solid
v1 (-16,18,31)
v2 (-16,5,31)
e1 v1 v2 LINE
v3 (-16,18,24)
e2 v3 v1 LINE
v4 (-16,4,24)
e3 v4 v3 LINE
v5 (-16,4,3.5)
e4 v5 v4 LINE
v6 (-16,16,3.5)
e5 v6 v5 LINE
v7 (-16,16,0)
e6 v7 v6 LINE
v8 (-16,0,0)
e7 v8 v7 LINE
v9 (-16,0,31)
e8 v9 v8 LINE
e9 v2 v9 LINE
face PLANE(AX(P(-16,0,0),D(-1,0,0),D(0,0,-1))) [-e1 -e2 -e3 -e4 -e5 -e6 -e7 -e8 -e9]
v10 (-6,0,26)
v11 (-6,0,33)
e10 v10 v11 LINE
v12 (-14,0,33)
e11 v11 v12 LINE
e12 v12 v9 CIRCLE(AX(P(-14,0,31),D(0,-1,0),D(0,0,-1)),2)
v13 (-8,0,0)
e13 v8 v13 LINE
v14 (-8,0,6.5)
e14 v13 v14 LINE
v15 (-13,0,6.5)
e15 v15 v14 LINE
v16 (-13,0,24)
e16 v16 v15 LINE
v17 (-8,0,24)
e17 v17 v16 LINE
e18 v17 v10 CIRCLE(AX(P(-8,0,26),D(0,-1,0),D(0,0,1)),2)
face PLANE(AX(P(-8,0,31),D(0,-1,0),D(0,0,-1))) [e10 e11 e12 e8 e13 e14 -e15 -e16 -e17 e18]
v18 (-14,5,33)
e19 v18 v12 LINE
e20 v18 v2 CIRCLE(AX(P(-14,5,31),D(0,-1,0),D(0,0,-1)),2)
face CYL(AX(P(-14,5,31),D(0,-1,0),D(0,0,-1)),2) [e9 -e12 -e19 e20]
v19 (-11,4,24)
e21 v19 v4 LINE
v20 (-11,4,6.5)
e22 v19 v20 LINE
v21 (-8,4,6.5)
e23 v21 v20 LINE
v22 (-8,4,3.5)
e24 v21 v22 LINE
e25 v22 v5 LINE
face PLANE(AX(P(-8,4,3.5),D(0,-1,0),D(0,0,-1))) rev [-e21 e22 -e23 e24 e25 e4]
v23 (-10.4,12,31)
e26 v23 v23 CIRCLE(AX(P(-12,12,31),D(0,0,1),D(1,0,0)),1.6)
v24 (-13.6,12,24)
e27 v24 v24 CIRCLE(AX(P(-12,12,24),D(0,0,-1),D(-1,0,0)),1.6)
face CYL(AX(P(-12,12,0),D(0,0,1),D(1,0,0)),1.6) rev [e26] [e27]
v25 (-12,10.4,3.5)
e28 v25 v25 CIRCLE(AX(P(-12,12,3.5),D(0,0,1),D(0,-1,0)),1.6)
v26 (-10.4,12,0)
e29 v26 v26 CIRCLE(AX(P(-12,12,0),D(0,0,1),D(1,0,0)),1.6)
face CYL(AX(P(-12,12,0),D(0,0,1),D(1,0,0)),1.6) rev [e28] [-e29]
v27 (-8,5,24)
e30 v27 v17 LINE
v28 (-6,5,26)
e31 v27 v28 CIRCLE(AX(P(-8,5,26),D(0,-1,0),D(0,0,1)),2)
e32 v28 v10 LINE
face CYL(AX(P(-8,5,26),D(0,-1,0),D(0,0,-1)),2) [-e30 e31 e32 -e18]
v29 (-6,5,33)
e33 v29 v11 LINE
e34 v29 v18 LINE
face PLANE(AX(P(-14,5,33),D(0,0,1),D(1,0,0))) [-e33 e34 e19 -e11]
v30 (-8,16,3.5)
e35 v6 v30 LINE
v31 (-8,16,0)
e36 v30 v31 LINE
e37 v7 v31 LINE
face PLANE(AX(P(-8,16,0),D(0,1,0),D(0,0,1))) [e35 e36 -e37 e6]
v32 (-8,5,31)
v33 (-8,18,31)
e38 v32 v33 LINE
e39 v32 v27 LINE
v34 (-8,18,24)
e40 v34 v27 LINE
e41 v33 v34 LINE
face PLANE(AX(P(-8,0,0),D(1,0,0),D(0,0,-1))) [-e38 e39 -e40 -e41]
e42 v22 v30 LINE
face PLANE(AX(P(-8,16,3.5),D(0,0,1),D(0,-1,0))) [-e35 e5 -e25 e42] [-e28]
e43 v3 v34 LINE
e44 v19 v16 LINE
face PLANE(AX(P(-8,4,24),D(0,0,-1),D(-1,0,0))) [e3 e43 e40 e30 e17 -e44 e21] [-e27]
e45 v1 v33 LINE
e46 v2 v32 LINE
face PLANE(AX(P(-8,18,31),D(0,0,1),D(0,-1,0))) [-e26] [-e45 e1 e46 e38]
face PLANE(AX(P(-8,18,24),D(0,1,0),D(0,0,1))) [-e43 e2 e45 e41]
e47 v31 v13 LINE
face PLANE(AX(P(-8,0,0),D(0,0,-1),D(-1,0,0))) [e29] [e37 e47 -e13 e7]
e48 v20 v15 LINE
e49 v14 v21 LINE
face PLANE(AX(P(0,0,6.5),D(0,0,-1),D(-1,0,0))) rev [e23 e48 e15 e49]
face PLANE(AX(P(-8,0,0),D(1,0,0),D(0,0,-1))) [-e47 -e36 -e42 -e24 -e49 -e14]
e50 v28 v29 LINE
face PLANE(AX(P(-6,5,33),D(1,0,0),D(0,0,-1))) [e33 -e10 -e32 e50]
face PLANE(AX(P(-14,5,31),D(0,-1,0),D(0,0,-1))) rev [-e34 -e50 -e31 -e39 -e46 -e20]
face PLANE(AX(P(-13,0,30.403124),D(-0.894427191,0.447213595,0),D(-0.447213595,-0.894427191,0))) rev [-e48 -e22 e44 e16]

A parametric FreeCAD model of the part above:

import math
import FreeCAD as App
import Part
import Sketcher
from FreeCAD import Vector
Q = App.Units.Quantity


def add_polygon(sketch, points):
    """Adds a closed chain of lines whose ends are joined by coincident constraints."""
    first, n = sketch.GeometryCount, len(points)
    for a, b in zip(points, points[1:] + points[:1]):
        sketch.addGeometry(Part.LineSegment(App.Vector(*a, 0), App.Vector(*b, 0)), False)
    for i in range(n):
        sketch.addConstraint(Sketcher.Constraint("Coincident", first + i, 2, first + (i + 1) % n, 1))

doc = App.newDocument("Part")
body = doc.addObject("PartDesign::Body", "Body")

sketch1 = body.newObject("Sketcher::SketchObject", "Sketch")
sketch1.AttachmentSupport = (doc.getObject("YZ_Plane"), [""])
sketch1.MapMode = "FlatFace"
add_polygon(sketch1, [(0, 0), (16, 0), (16, 3.5), (4, 3.5), (4, 24), (18, 24), (18, 31), (0, 31)])
sketch1.addConstraint(Sketcher.Constraint("Horizontal", 0))
sketch1.addConstraint(Sketcher.Constraint("Vertical", 1))
sketch1.addConstraint(Sketcher.Constraint("Horizontal", 2))
sketch1.addConstraint(Sketcher.Constraint("Vertical", 3))
sketch1.addConstraint(Sketcher.Constraint("Horizontal", 4))
sketch1.addConstraint(Sketcher.Constraint("Vertical", 5))
sketch1.addConstraint(Sketcher.Constraint("Horizontal", 6))
sketch1.addConstraint(Sketcher.Constraint("Vertical", 7))
sketch1.addConstraint(Sketcher.Constraint("Coincident", 7, 2, -1, 1))
sketch1.addConstraint(Sketcher.Constraint("DistanceX", 0, 1, 0, 2, Q("16 mm")))
sketch1.addConstraint(Sketcher.Constraint("DistanceX", 2, 2, 2, 1, Q("12 mm")))
sketch1.addConstraint(Sketcher.Constraint("DistanceX", 4, 1, 4, 2, Q("14 mm")))
sketch1.addConstraint(Sketcher.Constraint("DistanceY", 5, 1, 5, 2, Q("7 mm")))
sketch1.addConstraint(Sketcher.Constraint("DistanceY", 7, 2, 7, 1, Q("31 mm")))
sketch1.addConstraint(Sketcher.Constraint("DistanceY", 1, 1, 1, 2, Q("3.5 mm")))
pad1 = body.newObject("PartDesign::Pad", "Pad")
pad1.Profile = sketch1
pad1.Length = 8
pad1.Reversed = True

sketch2 = body.newObject("Sketcher::SketchObject", "Sketch001")
sketch2.AttachmentSupport = (doc.getObject("XY_Plane"), [""])
sketch2.MapMode = "FlatFace"
sketch2.AttachmentOffset = App.Placement(Vector(0, 0, 3.5), App.Rotation())
add_polygon(sketch2, [(-8, 0), (-3, 0), (-5, 4), (-8, 4)])
sketch2.addConstraint(Sketcher.Constraint("Horizontal", 0))
sketch2.addConstraint(Sketcher.Constraint("Horizontal", 2))
sketch2.addConstraint(Sketcher.Constraint("Vertical", 3))
sketch2.addConstraint(Sketcher.Constraint("PointOnObject", 0, 2, -1))
sketch2.addConstraint(Sketcher.Constraint("DistanceX", 0, 1, 0, 2, Q("5 mm")))
sketch2.addConstraint(Sketcher.Constraint("DistanceX", 2, 2, 2, 1, Q("3 mm")))
sketch2.addConstraint(Sketcher.Constraint("DistanceY", 3, 2, 3, 1, Q("4 mm")))
sketch2.addConstraint(Sketcher.Constraint("DistanceX", 0, 2, -1, 1, Q("3 mm")))
pocket1 = body.newObject("PartDesign::Pocket", "Pocket")
pocket1.Profile = sketch2
pocket1.Length = 20.5
pocket1.Reversed = True
doc.recompute()

datumplane = body.newObject("PartDesign::Plane", "DatumPlane")
datumplane.AttachmentSupport = (doc.getObject("YZ_Plane"), [""])
datumplane.MapMode = "FlatFace"
datumplane.AttachmentOffset = App.Placement(Vector(0, 0, -8), App.Rotation())
mirrored = body.newObject("PartDesign::Mirrored", "Mirrored")
mirrored.Originals = [pad1, pocket1]
mirrored.MirrorPlane = (datumplane, [""])
body.Tip = mirrored

sketch3 = body.newObject("Sketcher::SketchObject", "Sketch002")
sketch3.AttachmentSupport = (doc.getObject("YZ_Plane"), [""])
sketch3.MapMode = "FlatFace"
add_polygon(sketch3, [(20, 34), (-2, 34), (-2, -1), (20, -1)])
sketch3.addConstraint(Sketcher.Constraint("Horizontal", 0))
sketch3.addConstraint(Sketcher.Constraint("Vertical", 1))
sketch3.addConstraint(Sketcher.Constraint("Horizontal", 2))
sketch3.addConstraint(Sketcher.Constraint("Vertical", 3))
sketch3.addConstraint(Sketcher.Constraint("DistanceX", 0, 2, 0, 1, Q("22.226623 mm")))
sketch3.addConstraint(Sketcher.Constraint("DistanceY", 1, 2, 1, 1, Q("35.270415 mm")))
sketch3.addConstraint(Sketcher.Constraint("DistanceY", 1, 2, -1, 1, Q("1.374332 mm")))
sketch3.addConstraint(Sketcher.Constraint("DistanceX", 0, 2, -1, 1, Q("2.400275 mm")))
pocket2 = body.newObject("PartDesign::Pocket", "Pocket001")
pocket2.Profile = sketch3
pocket2.Length = 8

sketch4 = body.newObject("Sketcher::SketchObject", "Sketch003")
sketch4.AttachmentSupport = (doc.getObject("XY_Plane"), [""])
sketch4.MapMode = "FlatFace"
sketch4.AttachmentOffset = App.Placement(Vector(0, 0, 3.5), App.Rotation())
add_polygon(sketch4, [(-11, 4), (-13, 0), (-8, 0), (-8, 4)])
sketch4.addConstraint(Sketcher.Constraint("Horizontal", 1))
sketch4.addConstraint(Sketcher.Constraint("Vertical", 2))
sketch4.addConstraint(Sketcher.Constraint("Horizontal", 3))
sketch4.addConstraint(Sketcher.Constraint("PointOnObject", 0, 2, -1))
sketch4.addConstraint(Sketcher.Constraint("DistanceX", 1, 1, 1, 2, Q("5 mm")))
sketch4.addConstraint(Sketcher.Constraint("DistanceX", 3, 2, 3, 1, Q("3 mm")))
sketch4.addConstraint(Sketcher.Constraint("DistanceY", 2, 1, 2, 2, Q("4 mm")))
sketch4.addConstraint(Sketcher.Constraint("DistanceX", 0, 2, -1, 1, Q("13 mm")))
pad2 = body.newObject("PartDesign::Pad", "Pad001")
pad2.Profile = sketch4
pad2.Length = 3

sketch5 = body.newObject("Sketcher::SketchObject", "Sketch004")
sketch5.AttachmentSupport = (doc.getObject("XZ_Plane"), [""])
sketch5.MapMode = "FlatFace"
sketch5.addGeometry(Part.LineSegment(Vector(-6, 33, 0), Vector(-14, 33, 0)), False)
sketch5.addGeometry(Part.ArcOfCircle(Part.Circle(Vector(-14, 31, 0), Vector(0, 0, 1), 2), math.radians(90), math.radians(180)), False)
sketch5.addGeometry(Part.LineSegment(Vector(-16, 31, 0), Vector(-8, 31, 0)), False)
sketch5.addGeometry(Part.LineSegment(Vector(-8, 31, 0), Vector(-8, 24, 0)), False)
sketch5.addGeometry(Part.ArcOfCircle(Part.Circle(Vector(-8, 26, 0), Vector(0, 0, 1), 2), math.radians(-90), math.radians(0)), False)
sketch5.addGeometry(Part.LineSegment(Vector(-6, 26, 0), Vector(-6, 33, 0)), False)
sketch5.addConstraint(Sketcher.Constraint("Tangent", 0, 2, 1, 1))
sketch5.addConstraint(Sketcher.Constraint("Coincident", 1, 2, 2, 1))
sketch5.addConstraint(Sketcher.Constraint("Coincident", 2, 2, 3, 1))
sketch5.addConstraint(Sketcher.Constraint("Coincident", 3, 2, 4, 1))
sketch5.addConstraint(Sketcher.Constraint("Tangent", 4, 2, 5, 1))
sketch5.addConstraint(Sketcher.Constraint("Coincident", 5, 2, 0, 1))
sketch5.addConstraint(Sketcher.Constraint("Horizontal", 0))
sketch5.addConstraint(Sketcher.Constraint("Horizontal", 2))
sketch5.addConstraint(Sketcher.Constraint("Vertical", 3))
sketch5.addConstraint(Sketcher.Constraint("Vertical", 5))
sketch5.addConstraint(Sketcher.Constraint("Equal", 1, 4))
sketch5.addConstraint(Sketcher.Constraint("Vertical", 4, 3, 2, 2))
sketch5.addConstraint(Sketcher.Constraint("Equal", 3, 5))
sketch5.addConstraint(Sketcher.Constraint("Radius", 1, Q("2 mm")))
sketch5.addConstraint(Sketcher.Constraint("DistanceX", 0, 2, 0, 1, Q("8 mm")))
sketch5.addConstraint(Sketcher.Constraint("DistanceY", 3, 2, 3, 1, Q("7 mm")))
sketch5.addConstraint(Sketcher.Constraint("DistanceX", 1, 3, -1, 1, Q("14 mm")))
sketch5.addConstraint(Sketcher.Constraint("DistanceY", -1, 1, 1, 3, Q("31 mm")))
pad3 = body.newObject("PartDesign::Pad", "Pad002")
pad3.Profile = sketch5
pad3.Length = 5
pad3.Reversed = True

sketch6 = body.newObject("Sketcher::SketchObject", "Sketch005")
sketch6.AttachmentSupport = (doc.getObject("XY_Plane"), [""])
sketch6.MapMode = "FlatFace"
sketch6.AttachmentOffset = App.Placement(Vector(0, 0, 31), App.Rotation())
sketch6.addGeometry(Part.Circle(Vector(-12, 12, 0), Vector(0, 0, 1), 1.6), False)
sketch6.addConstraint(Sketcher.Constraint("Diameter", 0, Q("3.2 mm")))
sketch6.addConstraint(Sketcher.Constraint("DistanceX", 0, 3, -1, 1, Q("12 mm")))
sketch6.addConstraint(Sketcher.Constraint("DistanceY", -1, 1, 0, 3, Q("12 mm")))
pocket3 = body.newObject("PartDesign::Pocket", "Pocket002")
pocket3.Profile = sketch6
pocket3.Type = "ThroughAll"

doc.recompute()
